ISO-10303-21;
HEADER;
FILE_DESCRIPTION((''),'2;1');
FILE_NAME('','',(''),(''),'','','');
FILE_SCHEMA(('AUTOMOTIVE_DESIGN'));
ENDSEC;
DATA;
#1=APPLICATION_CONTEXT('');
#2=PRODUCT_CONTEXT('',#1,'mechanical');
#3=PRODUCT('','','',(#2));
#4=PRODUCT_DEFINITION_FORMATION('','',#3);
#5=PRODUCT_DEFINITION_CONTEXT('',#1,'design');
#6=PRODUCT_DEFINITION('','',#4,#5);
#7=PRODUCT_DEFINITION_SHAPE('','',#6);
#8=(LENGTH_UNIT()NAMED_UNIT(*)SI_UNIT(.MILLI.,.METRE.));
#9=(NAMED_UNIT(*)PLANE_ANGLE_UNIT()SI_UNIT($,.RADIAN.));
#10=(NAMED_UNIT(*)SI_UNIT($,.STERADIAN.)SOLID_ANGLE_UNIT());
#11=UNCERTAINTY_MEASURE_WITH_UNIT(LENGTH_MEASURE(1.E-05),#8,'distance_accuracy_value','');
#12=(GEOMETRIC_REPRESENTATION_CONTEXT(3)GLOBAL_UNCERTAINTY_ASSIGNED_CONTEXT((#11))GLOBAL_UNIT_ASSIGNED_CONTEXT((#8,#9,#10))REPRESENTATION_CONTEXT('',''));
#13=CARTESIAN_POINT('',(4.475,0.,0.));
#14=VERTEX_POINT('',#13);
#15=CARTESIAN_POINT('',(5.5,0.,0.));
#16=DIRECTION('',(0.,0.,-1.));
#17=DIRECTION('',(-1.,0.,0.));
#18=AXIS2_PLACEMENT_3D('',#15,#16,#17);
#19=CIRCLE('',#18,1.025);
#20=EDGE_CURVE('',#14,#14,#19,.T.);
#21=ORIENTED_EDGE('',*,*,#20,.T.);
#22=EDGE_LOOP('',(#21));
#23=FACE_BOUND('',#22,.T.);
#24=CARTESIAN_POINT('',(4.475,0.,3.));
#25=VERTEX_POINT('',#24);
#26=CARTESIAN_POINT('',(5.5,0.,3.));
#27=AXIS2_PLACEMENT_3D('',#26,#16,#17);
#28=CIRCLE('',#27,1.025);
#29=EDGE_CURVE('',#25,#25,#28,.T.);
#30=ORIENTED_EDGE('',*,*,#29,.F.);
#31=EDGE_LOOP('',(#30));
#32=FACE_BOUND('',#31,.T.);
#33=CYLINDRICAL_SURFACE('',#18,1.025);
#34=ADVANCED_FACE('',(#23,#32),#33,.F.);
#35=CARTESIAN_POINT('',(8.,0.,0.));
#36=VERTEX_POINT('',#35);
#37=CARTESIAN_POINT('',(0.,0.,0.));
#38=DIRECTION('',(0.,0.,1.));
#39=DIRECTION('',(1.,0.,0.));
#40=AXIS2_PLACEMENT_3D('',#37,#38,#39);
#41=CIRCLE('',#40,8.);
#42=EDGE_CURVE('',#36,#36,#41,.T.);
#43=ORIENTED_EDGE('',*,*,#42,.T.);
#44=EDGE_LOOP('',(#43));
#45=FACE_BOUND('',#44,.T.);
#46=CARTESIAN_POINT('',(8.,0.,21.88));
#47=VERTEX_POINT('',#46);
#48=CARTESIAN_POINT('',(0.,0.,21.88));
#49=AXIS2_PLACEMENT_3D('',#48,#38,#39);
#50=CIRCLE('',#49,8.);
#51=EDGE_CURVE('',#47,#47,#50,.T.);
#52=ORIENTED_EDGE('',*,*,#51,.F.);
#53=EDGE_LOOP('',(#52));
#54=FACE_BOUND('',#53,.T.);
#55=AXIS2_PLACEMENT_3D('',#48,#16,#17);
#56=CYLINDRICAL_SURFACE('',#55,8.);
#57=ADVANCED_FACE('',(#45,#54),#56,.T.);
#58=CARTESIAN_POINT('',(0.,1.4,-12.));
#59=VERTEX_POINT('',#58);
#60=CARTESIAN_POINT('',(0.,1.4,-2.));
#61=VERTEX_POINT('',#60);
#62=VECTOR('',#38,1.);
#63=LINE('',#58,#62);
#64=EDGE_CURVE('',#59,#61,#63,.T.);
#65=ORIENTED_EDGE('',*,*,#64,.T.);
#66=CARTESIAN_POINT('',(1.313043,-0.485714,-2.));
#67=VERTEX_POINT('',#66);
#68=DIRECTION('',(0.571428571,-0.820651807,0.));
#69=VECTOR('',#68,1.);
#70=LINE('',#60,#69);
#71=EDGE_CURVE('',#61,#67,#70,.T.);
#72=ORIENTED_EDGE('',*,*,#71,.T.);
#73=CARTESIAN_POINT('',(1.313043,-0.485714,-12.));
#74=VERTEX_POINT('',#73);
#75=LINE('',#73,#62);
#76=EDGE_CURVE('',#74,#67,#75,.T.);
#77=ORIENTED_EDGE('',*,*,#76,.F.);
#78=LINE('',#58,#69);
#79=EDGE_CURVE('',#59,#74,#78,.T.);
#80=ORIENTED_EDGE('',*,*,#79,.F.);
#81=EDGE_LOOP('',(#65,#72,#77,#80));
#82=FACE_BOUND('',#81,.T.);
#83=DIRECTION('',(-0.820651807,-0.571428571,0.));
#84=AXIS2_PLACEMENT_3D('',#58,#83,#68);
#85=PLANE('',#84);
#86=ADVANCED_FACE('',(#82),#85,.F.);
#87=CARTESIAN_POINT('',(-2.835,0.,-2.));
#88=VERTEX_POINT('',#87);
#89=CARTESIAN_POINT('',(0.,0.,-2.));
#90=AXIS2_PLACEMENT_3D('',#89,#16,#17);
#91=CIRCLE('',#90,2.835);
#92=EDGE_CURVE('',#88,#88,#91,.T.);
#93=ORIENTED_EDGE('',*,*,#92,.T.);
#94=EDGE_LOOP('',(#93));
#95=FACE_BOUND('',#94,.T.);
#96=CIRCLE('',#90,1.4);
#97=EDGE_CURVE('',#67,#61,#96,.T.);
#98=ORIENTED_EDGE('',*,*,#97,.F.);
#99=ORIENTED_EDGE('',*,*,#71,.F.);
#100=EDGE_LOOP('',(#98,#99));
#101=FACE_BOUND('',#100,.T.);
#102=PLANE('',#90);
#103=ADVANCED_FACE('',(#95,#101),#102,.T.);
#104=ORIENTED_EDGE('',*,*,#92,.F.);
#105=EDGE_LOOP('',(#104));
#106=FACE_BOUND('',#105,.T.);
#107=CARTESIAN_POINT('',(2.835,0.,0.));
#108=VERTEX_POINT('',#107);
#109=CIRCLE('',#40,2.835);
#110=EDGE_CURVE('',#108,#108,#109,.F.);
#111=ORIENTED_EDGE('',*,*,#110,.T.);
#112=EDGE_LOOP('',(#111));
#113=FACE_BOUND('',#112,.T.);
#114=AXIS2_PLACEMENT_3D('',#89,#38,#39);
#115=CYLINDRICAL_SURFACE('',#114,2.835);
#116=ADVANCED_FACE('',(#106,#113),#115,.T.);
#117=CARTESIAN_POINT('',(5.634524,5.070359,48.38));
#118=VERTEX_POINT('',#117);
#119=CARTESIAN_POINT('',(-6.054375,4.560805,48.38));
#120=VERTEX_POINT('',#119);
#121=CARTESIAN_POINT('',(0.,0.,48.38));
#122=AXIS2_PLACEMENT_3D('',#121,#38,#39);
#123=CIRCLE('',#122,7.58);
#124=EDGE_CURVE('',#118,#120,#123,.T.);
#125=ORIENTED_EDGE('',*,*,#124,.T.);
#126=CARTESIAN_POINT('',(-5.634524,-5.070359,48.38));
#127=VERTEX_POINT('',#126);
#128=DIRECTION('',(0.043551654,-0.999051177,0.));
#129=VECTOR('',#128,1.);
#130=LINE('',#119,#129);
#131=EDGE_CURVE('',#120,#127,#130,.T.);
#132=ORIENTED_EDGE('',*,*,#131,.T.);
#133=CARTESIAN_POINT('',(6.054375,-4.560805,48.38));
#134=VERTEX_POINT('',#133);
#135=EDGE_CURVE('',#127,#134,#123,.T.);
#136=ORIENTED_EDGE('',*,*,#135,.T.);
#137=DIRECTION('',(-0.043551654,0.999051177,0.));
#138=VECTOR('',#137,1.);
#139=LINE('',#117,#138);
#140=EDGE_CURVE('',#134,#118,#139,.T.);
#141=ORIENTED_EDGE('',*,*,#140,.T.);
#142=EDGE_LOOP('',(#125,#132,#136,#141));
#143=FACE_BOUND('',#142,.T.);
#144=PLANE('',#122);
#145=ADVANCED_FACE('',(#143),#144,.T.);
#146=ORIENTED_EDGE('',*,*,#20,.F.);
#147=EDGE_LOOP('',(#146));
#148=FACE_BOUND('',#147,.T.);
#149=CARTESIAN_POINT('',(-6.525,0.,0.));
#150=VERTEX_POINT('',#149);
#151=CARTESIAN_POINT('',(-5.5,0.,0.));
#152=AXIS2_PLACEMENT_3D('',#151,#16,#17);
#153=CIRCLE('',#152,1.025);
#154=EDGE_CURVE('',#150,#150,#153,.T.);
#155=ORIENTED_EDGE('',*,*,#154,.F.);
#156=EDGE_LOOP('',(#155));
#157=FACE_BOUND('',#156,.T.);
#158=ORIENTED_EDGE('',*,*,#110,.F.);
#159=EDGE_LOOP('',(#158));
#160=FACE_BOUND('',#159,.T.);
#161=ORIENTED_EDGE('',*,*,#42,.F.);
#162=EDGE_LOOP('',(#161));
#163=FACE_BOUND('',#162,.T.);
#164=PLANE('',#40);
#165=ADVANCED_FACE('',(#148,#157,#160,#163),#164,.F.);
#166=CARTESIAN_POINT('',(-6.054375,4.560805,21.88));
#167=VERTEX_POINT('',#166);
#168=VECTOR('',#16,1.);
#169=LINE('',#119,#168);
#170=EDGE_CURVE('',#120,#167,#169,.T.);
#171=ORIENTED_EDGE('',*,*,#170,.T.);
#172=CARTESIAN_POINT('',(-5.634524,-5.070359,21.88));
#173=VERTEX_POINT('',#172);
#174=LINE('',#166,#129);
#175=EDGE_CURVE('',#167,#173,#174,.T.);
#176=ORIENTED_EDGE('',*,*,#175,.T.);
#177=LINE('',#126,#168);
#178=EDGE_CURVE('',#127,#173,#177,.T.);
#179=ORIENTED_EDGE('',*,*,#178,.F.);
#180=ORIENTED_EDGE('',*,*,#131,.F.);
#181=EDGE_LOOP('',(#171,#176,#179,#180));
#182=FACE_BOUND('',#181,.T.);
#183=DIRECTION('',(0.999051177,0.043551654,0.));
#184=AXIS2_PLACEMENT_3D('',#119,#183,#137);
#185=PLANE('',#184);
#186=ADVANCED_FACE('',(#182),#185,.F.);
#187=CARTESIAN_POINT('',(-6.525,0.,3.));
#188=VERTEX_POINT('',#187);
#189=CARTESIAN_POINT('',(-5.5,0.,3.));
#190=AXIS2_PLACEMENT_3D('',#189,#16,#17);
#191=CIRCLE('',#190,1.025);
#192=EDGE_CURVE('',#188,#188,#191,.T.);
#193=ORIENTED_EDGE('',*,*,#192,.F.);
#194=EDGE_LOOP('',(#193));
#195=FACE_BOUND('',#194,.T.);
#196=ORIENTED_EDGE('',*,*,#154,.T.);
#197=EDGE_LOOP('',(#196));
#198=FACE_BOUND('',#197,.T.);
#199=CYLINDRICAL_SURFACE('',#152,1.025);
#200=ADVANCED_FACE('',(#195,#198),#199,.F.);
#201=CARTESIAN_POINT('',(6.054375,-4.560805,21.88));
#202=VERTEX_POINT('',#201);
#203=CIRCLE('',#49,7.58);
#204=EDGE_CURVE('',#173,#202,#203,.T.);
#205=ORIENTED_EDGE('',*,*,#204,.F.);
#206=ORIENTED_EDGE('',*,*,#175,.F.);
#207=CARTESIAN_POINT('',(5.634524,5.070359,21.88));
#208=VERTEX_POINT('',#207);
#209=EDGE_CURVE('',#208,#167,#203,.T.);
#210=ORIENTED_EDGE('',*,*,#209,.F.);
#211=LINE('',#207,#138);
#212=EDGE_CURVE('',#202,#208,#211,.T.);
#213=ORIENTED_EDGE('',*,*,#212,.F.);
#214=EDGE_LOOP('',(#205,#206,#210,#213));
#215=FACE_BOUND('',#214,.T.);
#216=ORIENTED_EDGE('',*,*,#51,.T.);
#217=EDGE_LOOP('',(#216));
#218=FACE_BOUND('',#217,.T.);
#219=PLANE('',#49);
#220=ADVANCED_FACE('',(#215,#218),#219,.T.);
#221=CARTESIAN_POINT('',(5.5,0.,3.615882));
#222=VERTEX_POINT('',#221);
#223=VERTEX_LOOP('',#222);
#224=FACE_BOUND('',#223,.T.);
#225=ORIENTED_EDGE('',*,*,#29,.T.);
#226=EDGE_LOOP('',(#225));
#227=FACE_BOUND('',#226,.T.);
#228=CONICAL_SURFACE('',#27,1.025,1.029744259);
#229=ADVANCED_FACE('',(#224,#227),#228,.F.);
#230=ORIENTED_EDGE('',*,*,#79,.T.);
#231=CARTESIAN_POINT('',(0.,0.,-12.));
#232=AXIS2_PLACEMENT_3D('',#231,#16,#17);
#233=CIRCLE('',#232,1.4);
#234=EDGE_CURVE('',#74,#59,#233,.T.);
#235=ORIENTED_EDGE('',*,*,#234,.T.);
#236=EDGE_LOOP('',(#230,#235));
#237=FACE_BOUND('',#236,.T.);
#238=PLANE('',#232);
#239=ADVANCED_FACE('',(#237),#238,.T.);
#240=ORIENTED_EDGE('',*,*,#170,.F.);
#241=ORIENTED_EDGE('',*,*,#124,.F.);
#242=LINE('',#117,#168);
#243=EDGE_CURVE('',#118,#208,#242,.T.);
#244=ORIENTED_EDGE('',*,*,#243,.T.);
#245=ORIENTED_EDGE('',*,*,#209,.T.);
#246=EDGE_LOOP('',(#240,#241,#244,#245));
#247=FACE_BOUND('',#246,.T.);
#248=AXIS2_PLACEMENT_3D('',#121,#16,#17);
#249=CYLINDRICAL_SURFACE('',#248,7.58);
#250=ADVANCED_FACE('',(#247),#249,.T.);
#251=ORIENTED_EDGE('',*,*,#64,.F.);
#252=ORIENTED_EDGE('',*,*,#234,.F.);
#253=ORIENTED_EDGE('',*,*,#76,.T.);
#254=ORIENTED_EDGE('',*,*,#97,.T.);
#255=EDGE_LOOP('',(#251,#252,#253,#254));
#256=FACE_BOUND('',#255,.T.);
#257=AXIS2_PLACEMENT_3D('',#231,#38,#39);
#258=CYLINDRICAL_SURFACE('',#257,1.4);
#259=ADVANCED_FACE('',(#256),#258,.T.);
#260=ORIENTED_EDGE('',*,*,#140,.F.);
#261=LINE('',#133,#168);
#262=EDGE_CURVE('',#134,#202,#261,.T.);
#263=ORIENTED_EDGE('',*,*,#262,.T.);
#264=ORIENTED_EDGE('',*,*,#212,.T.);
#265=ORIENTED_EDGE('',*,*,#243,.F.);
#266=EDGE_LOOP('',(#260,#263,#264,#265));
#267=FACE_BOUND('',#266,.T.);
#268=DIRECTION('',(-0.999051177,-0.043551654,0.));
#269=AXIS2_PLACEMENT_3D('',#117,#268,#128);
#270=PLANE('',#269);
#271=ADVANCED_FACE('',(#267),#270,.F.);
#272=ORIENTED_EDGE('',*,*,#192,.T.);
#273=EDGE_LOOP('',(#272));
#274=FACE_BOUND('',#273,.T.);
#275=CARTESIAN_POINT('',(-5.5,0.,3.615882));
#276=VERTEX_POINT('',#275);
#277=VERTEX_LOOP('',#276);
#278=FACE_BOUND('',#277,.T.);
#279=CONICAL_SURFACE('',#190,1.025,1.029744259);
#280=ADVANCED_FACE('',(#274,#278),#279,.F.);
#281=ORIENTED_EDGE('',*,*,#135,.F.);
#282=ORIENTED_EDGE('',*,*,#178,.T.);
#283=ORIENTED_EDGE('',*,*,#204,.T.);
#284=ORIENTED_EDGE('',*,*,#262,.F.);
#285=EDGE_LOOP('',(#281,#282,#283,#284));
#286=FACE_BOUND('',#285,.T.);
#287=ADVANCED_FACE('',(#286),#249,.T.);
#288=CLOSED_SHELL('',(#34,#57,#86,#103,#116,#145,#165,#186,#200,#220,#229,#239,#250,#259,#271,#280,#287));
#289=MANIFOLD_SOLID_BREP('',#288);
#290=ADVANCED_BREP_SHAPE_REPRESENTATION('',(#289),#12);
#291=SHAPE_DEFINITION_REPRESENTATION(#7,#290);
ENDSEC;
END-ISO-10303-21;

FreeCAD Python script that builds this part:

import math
import FreeCAD as App
import Part
import Sketcher

V = App.Vector

doc = App.newDocument("Part")
body = doc.addObject("PartDesign::Body", "Body")

# Sketch on XY plane
sketch1 = body.newObject("Sketcher::SketchObject", "Sketch")
sketch1.AttachmentSupport = (doc.getObject("XY_Plane"), [""])
sketch1.MapMode = "FlatFace"
sketch1.addGeometry(Part.Circle(V(0, 0, 0), V(0, 0, 1), 8), False)
sketch1.addConstraint(Sketcher.Constraint("Coincident", 0, 3, -1, 1))
sketch1.addConstraint(Sketcher.Constraint("Diameter", 0, 16.0))
pad1 = body.newObject("PartDesign::Pad", "Pad")
pad1.Profile = sketch1
pad1.Length = 21.88

# Sketch on XY plane
sketch2 = body.newObject("Sketcher::SketchObject", "Sketch001")
sketch2.AttachmentSupport = (doc.getObject("XY_Plane"), [""])
sketch2.MapMode = "FlatFace"
sketch2.AttachmentOffset = App.Placement(V(0, 0, 21.88), App.Rotation())
sketch2.addGeometry(Part.LineSegment(V(6, -5, 0), V(6, 5, 0)), False)
sketch2.addGeometry(Part.ArcOfCircle(Part.Circle(V(0, 0, 0), V(0, 0, 1), 8), math.radians(42), math.radians(143)), False)
sketch2.addGeometry(Part.LineSegment(V(-6, 5, 0), V(-6, -5, 0)), False)
sketch2.addGeometry(Part.ArcOfCircle(Part.Circle(V(0, 0, 0), V(0, 0, 1), 8), math.radians(-138), math.radians(-37)), False)
sketch2.addConstraint(Sketcher.Constraint("Coincident", 0, 2, 1, 1))
sketch2.addConstraint(Sketcher.Constraint("Coincident", 1, 2, 2, 1))
sketch2.addConstraint(Sketcher.Constraint("Coincident", 2, 2, 3, 1))
sketch2.addConstraint(Sketcher.Constraint("Coincident", 3, 2, 0, 1))
sketch2.addConstraint(Sketcher.Constraint("Coincident", 1, 3, -1, 1))
sketch2.addConstraint(Sketcher.Constraint("Coincident", 3, 3, -1, 1))
sketch2.addConstraint(Sketcher.Constraint("Equal", 1, 3))
sketch2.addConstraint(Sketcher.Constraint("Parallel", 0, 2))
sketch2.addConstraint(Sketcher.Constraint("Equal", 0, 2))
sketch2.addConstraint(Sketcher.Constraint("Radius", 1, 7.58))
sketch2.addConstraint(Sketcher.Constraint("DistanceX", 1, 2, 0, 2, 11.688899))
sketch2.addConstraint(Sketcher.Constraint("Distance", 0, 9.640311))
pad2 = body.newObject("PartDesign::Pad", "Pad001")
pad2.Profile = sketch2
pad2.Length = 26.5

# Sketch on XY plane
sketch3 = body.newObject("Sketcher::SketchObject", "Sketch002")
sketch3.AttachmentSupport = (doc.getObject("XY_Plane"), [""])
sketch3.MapMode = "FlatFace"
sketch3.addGeometry(Part.Circle(V(0, 0, 0), V(0, 0, 1), 2.8), False)
sketch3.addConstraint(Sketcher.Constraint("Coincident", 0, 3, -1, 1))
sketch3.addConstraint(Sketcher.Constraint("Diameter", 0, 5.67))
pad3 = body.newObject("PartDesign::Pad", "Pad002")
pad3.Profile = sketch3
pad3.Length = 2
pad3.Reversed = True

# Sketch on XY plane
sketch4 = body.newObject("Sketcher::SketchObject", "Sketch003")
sketch4.AttachmentSupport = (doc.getObject("XY_Plane"), [""])
sketch4.MapMode = "FlatFace"
sketch4.AttachmentOffset = App.Placement(V(0, 0, -2), App.Rotation())
sketch4.addGeometry(Part.LineSegment(V(0, 1.4, 0), V(1.3, -0.5, 0)), False)
sketch4.addGeometry(Part.ArcOfCircle(Part.Circle(V(0, 0, 0), V(0, 0, 1), 1.4), math.radians(90), math.radians(340)), False)
sketch4.addConstraint(Sketcher.Constraint("Coincident", 0, 1, 1, 1))
sketch4.addConstraint(Sketcher.Constraint("Coincident", 1, 2, 0, 2))
sketch4.addConstraint(Sketcher.Constraint("Coincident", 1, 3, -1, 1))
sketch4.addConstraint(Sketcher.Constraint("PointOnObject", 0, 1, -2))
sketch4.addConstraint(Sketcher.Constraint("Radius", 1, 1.4))
sketch4.addConstraint(Sketcher.Constraint("Distance", 0, 2.297825))
pad4 = body.newObject("PartDesign::Pad", "Pad003")
pad4.Profile = sketch4
pad4.Length = 10
pad4.Reversed = True

# Sketch on XY plane
sketch5 = body.newObject("Sketcher::SketchObject", "Sketch004")
sketch5.AttachmentSupport = (doc.getObject("XY_Plane"), [""])
sketch5.MapMode = "FlatFace"
sketch5.addGeometry(Part.Circle(V(5.5, 0, 0), V(0, 0, 1), 1), False)
sketch5.addGeometry(Part.Circle(V(-5.5, 0, 0), V(0, 0, 1), 1), False)
sketch5.addConstraint(Sketcher.Constraint("Equal", 0, 1))
sketch5.addConstraint(Sketcher.Constraint("Symmetric", 0, 3, 1, 3, -1, 1))
sketch5.addConstraint(Sketcher.Constraint("PointOnObject", 0, 3, -1))
sketch5.addConstraint(Sketcher.Constraint("Diameter", 0, 2.05))
sketch5.addConstraint(Sketcher.Constraint("DistanceX", 1, 3, 0, 3, 11.0))
doc.recompute()
hole = body.newObject("PartDesign::Hole", "Hole")
hole.Profile = sketch5
hole.ThreadType = "None"
hole.Diameter = 2.05
hole.DepthType = "Dimension"
hole.Depth = 3
hole.DrillPoint = "Angled"
hole.DrillPointAngle = 118
hole.Reversed = True

doc.recompute()
